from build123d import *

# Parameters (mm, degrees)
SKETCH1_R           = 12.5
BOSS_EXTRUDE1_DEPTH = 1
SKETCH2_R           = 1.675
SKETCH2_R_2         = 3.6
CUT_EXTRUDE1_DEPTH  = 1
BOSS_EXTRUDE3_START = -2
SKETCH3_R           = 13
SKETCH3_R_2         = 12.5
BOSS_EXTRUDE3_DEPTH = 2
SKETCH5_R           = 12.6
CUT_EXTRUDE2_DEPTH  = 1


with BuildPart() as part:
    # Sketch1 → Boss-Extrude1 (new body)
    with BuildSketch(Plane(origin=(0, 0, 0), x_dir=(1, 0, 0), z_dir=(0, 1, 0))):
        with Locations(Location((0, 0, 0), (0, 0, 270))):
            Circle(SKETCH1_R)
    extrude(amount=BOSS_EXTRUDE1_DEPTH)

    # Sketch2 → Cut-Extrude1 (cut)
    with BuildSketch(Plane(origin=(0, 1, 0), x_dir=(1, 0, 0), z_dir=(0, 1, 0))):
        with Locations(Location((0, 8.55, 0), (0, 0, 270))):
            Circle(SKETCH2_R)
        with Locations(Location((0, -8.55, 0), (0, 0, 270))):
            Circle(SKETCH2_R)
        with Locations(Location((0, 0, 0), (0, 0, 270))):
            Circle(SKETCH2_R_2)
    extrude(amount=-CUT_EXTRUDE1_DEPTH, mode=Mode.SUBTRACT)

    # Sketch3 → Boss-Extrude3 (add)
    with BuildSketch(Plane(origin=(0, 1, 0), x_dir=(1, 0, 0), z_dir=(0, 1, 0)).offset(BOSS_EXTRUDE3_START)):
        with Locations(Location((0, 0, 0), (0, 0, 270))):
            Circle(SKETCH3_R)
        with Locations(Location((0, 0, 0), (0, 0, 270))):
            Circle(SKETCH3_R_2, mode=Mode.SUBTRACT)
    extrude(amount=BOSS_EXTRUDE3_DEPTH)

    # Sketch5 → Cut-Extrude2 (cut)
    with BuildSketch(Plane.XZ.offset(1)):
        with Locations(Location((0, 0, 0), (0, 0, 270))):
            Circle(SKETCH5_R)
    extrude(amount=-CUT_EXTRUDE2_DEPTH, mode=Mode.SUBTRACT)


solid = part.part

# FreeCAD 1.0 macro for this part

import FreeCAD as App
import Part
import Sketcher

V = App.Vector

doc = App.newDocument("Part")
body = doc.addObject("PartDesign::Body", "Body")

sketch1 = doc.addObject("Sketcher::SketchObject", "Sketch")
body.addObject(sketch1)
sketch1.AttachmentSupport = (doc.XZ_Plane, [""])
sketch1.MapMode = "FlatFace"
sketch1.addGeometry(Part.Circle(V(0, 0, 0), V(0, 0, 1), 12), False)
sketch1.addConstraint([
    Sketcher.Constraint("Coincident", 0, 3, -1, 1),
    Sketcher.Constraint("Diameter", 0, 25.0),
])
pad1 = doc.addObject("PartDesign::Pad", "Pad")
body.addObject(pad1)
pad1.Profile = sketch1
pad1.Length = 1
pad1.Reversed = True

sketch2 = doc.addObject("Sketcher::SketchObject", "Sketch001")
body.addObject(sketch2)
sketch2.AttachmentSupport = (doc.XZ_Plane, [""])
sketch2.MapMode = "FlatFace"
sketch2.AttachmentOffset = App.Placement(V(0, 0, -1), App.Rotation())
sketch2.addGeometry([
    Part.Circle(V(0, -8.6, 0), V(0, 0, 1), 1.7),
    Part.Circle(V(0, 8.6, 0), V(0, 0, 1), 1.7),
    Part.Circle(V(0, 0, 0), V(0, 0, 1), 3.6),
], False)
sketch2.addConstraint([
    Sketcher.Constraint("Coincident", 2, 3, -1, 1),
    Sketcher.Constraint("Equal", 0, 1),
    Sketcher.Constraint("Symmetric", 0, 3, 1, 3, -1, 1),
    Sketcher.Constraint("PointOnObject", 0, 3, -2),
    Sketcher.Constraint("Diameter", 2, 7.2),
    Sketcher.Constraint("Diameter", 0, 3.35),
    Sketcher.Constraint("DistanceY", 0, 3, 1, 3, 17.1),
])
pocket1 = doc.addObject("PartDesign::Pocket", "Pocket")
body.addObject(pocket1)
pocket1.Profile = sketch2
pocket1.Length = 1
pocket1.Reversed = True

sketch3 = doc.addObject("Sketcher::SketchObject", "Sketch002")
body.addObject(sketch3)
sketch3.AttachmentSupport = (doc.XZ_Plane, [""])
sketch3.MapMode = "FlatFace"
sketch3.AttachmentOffset = App.Placement(V(0, 0, 1), App.Rotation())
sketch3.addGeometry([
    Part.Circle(V(0, 0, 0), V(0, 0, 1), 13),
    Part.Circle(V(0, 0, 0), V(0, 0, 1), 12),
], False)
sketch3.addConstraint([
    Sketcher.Constraint("Coincident", 0, 3, -1, 1),
    Sketcher.Constraint("Coincident", 1, 3, -1, 1),
    Sketcher.Constraint("Diameter", 0, 26.0),
    Sketcher.Constraint("Diameter", 1, 25.0),
])
pad2 = doc.addObject("PartDesign::Pad", "Pad001")
body.addObject(pad2)
pad2.Profile = sketch3
pad2.Length = 2
pad2.Reversed = True

sketch4 = doc.addObject("Sketcher::SketchObject", "Sketch003")
body.addObject(sketch4)
sketch4.AttachmentSupport = (doc.XZ_Plane, [""])
sketch4.MapMode = "FlatFace"
sketch4.AttachmentOffset = App.Placement(V(0, 0, 1), App.Rotation())
sketch4.addGeometry(Part.Circle(V(0, 0, 0), V(0, 0, 1), 13), False)
sketch4.addConstraint([
    Sketcher.Constraint("Coincident", 0, 3, -1, 1),
    Sketcher.Constraint("Diameter", 0, 25.2),
])
pocket2 = doc.addObject("PartDesign::Pocket", "Pocket001")
body.addObject(pocket2)
pocket2.Profile = sketch4
pocket2.Length = 1

doc.recompute()
